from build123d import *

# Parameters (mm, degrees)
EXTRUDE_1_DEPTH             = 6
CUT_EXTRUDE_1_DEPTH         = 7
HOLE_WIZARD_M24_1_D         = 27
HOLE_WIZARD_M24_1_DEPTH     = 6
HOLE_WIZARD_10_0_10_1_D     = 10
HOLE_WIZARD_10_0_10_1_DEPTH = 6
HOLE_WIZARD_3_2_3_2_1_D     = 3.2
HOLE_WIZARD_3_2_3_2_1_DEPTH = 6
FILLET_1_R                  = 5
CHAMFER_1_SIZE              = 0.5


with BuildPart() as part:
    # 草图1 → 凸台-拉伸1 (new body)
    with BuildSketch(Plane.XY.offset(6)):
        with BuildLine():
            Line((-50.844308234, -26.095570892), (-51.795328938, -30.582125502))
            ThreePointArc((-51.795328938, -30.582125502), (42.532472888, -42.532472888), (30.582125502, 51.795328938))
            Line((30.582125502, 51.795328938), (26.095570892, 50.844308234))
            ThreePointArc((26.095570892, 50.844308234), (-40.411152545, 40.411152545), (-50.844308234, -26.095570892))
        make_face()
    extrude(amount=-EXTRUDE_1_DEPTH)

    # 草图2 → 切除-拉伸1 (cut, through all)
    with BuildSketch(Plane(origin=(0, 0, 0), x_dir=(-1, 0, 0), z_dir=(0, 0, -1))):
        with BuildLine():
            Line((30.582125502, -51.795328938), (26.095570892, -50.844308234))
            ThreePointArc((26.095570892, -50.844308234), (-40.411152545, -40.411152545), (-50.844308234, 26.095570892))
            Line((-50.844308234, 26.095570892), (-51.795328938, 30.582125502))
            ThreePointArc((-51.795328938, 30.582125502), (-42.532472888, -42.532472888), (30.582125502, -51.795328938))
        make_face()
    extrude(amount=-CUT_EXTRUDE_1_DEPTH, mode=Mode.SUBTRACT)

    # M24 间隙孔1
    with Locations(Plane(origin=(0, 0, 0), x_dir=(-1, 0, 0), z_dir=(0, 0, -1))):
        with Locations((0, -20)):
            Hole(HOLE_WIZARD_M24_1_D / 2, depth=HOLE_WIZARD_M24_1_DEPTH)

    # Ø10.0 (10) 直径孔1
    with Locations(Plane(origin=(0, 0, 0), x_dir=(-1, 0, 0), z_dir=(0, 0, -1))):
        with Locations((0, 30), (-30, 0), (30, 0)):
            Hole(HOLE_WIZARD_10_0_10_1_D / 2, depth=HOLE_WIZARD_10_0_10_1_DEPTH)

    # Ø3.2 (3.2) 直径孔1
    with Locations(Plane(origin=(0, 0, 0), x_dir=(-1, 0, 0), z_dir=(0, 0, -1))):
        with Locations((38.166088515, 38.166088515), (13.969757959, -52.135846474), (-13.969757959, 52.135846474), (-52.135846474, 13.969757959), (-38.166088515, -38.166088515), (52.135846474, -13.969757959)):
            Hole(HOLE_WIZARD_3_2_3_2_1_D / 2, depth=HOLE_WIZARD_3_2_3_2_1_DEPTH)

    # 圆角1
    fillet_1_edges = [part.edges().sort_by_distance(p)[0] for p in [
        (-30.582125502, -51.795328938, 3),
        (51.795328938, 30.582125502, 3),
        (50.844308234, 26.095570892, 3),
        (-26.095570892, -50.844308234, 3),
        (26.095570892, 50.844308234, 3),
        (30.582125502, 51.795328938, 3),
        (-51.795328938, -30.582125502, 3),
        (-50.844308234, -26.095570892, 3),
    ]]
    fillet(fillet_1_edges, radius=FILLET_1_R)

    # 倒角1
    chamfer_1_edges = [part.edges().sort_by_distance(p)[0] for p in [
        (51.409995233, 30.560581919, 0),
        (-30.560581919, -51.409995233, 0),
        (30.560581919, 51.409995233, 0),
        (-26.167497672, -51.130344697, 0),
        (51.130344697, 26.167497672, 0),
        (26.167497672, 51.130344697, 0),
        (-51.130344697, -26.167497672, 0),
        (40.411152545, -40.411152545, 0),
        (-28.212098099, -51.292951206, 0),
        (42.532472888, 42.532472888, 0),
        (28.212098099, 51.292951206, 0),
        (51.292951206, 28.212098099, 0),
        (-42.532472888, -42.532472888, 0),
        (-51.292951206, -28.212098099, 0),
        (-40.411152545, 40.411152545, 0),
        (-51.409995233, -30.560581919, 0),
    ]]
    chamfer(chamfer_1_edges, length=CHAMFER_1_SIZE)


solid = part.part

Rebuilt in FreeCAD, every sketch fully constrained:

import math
import FreeCAD as App
import Part
import Sketcher

V = App.Vector
Q = App.Units.Quantity


def edges_at(feature, points):
    """Names of the edges that pass closest to the given points."""
    edges = feature.Shape.Edges
    near = lambda p: min(range(len(edges)), key=lambda i: edges[i].distToShape(Part.Vertex(*p))[0])
    return sorted({f"Edge{near(p) + 1}" for p in points})

doc = App.newDocument("Part")
params = doc.addObject("Spreadsheet::Sheet", "Params")
for row, (alias, value) in enumerate([
    ("sketch1_radius", "60.15 mm"),
    ("sketch1_radius2", "57.15 mm"),
    ("pad1_length", "6 mm"),
    ("sketch2_radius", "57.15 mm"),
    ("sketch2_radius2", "60.15 mm"),
    ("sketch3_diameter", "27 mm"),
    ("hole_diameter", "27 mm"),
    ("hole_depth", "6 mm"),
    ("sketch4_diameter", "10 mm"),
    ("hole2_diameter", "10 mm"),
    ("hole2_depth", "6 mm"),
    ("sketch5_diameter", "3.2 mm"),
    ("hole3_diameter", "3.2 mm"),
    ("hole3_depth", "6 mm"),
    ("fillet_radius", "5 mm"),
    ("chamfer_size", "0.5 mm"),
], start=1):
    params.set(f"A{row}", alias)
    params.set(f"B{row}", "=" + value)
    params.setAlias(f"B{row}", alias)

body = doc.addObject("PartDesign::Body", "Body")

# Sketch on XY plane
sketch1 = body.newObject("Sketcher::SketchObject", "Sketch")
sketch1.AttachmentSupport = (doc.getObject("XY_Plane"), [""])
sketch1.MapMode = "FlatFace"
sketch1.AttachmentOffset = App.Placement(V(0, 0, 6), App.Rotation())
sketch1.addGeometry(Part.LineSegment(V(-50.8, -26.1, 0), V(-51.8, -30.6, 0)), False)
sketch1.addGeometry(Part.ArcOfCircle(Part.Circle(V(0, 0, 0), V(0, 0, 1), 60.1), math.radians(-149), math.radians(59)), False)
sketch1.addGeometry(Part.LineSegment(V(30.6, 51.8, 0), V(26.1, 50.8, 0)), False)
sketch1.addGeometry(Part.ArcOfCircle(Part.Circle(V(0, 0, 0), V(0, 0, 1), 57.1), math.radians(63), math.radians(207)), False)
sketch1.addConstraint(Sketcher.Constraint("Coincident", 0, 2, 1, 1))
sketch1.addConstraint(Sketcher.Constraint("Coincident", 1, 2, 2, 1))
sketch1.addConstraint(Sketcher.Constraint("Coincident", 2, 2, 3, 1))
sketch1.addConstraint(Sketcher.Constraint("Coincident", 3, 2, 0, 1))
sketch1.addConstraint(Sketcher.Constraint("Coincident", 1, 3, -1, 1))
sketch1.addConstraint(Sketcher.Constraint("Coincident", 3, 3, -1, 1))
sketch1.addConstraint(Sketcher.Constraint("Equal", 0, 2))
sketch1.addConstraint(Sketcher.Constraint("Radius", 1, Q("60.15 mm")))
sketch1.addConstraint(Sketcher.Constraint("Radius", 3, Q("57.15 mm")))
sketch1.addConstraint(Sketcher.Constraint("DistanceX", 0, 2, 2, 2, Q("77.8909 mm")))
sketch1.addConstraint(Sketcher.Constraint("DistanceY", 3, 2, 1, 2, Q("77.8909 mm")))
sketch1.addConstraint(Sketcher.Constraint("Distance", 0, Q("4.586242 mm")))
sketch1.setExpression("Constraints[7]", "Params.sketch1_radius")
sketch1.setExpression("Constraints[8]", "Params.sketch1_radius2")
pad1 = body.newObject("PartDesign::Pad", "Pad")
pad1.Profile = sketch1
pad1.setExpression("Length", "Params.pad1_length")
pad1.Reversed = True

# Sketch on XY plane
sketch2 = body.newObject("Sketcher::SketchObject", "Sketch001")
sketch2.AttachmentSupport = (doc.getObject("XY_Plane"), [""])
sketch2.MapMode = "FlatFace"
sketch2.addGeometry(Part.LineSegment(V(-30.6, -51.8, 0), V(-26.1, -50.8, 0)), False)
sketch2.addGeometry(Part.ArcOfCircle(Part.Circle(V(0, 0, 0), V(0, 0, 1), 57.1), math.radians(-117), math.radians(27)), False)
sketch2.addGeometry(Part.LineSegment(V(50.8, 26.1, 0), V(51.8, 30.6, 0)), False)
sketch2.addGeometry(Part.ArcOfCircle(Part.Circle(V(0, 0, 0), V(0, 0, 1), 60.1), math.radians(-121), math.radians(31)), False)
sketch2.addConstraint(Sketcher.Constraint("Coincident", 0, 2, 1, 1))
sketch2.addConstraint(Sketcher.Constraint("Coincident", 1, 2, 2, 1))
sketch2.addConstraint(Sketcher.Constraint("Coincident", 2, 2, 3, 2))
sketch2.addConstraint(Sketcher.Constraint("Coincident", 3, 1, 0, 1))
sketch2.addConstraint(Sketcher.Constraint("Coincident", 1, 3, -1, 1))
sketch2.addConstraint(Sketcher.Constraint("Coincident", 3, 3, -1, 1))
sketch2.addConstraint(Sketcher.Constraint("Equal", 0, 2))
sketch2.addConstraint(Sketcher.Constraint("Radius", 1, Q("57.15 mm")))
sketch2.addConstraint(Sketcher.Constraint("Radius", 3, Q("60.15 mm")))
sketch2.addConstraint(Sketcher.Constraint("DistanceX", 0, 2, 2, 2, Q("77.8909 mm")))
sketch2.addConstraint(Sketcher.Constraint("DistanceY", 3, 1, 1, 2, Q("77.8909 mm")))
sketch2.addConstraint(Sketcher.Constraint("Distance", 0, Q("4.586242 mm")))
sketch2.setExpression("Constraints[7]", "Params.sketch2_radius")
sketch2.setExpression("Constraints[8]", "Params.sketch2_radius2")
pocket1 = body.newObject("PartDesign::Pocket", "Pocket")
pocket1.Profile = sketch2
pocket1.Type = "ThroughAll"
pocket1.Reversed = True

# Sketch on XY plane
sketch3 = body.newObject("Sketcher::SketchObject", "Sketch002")
sketch3.AttachmentSupport = (doc.getObject("XY_Plane"), [""])
sketch3.MapMode = "FlatFace"
sketch3.addGeometry(Part.Circle(V(0, -20, 0), V(0, 0, 1), 14), False)
sketch3.addConstraint(Sketcher.Constraint("PointOnObject", 0, 3, -2))
sketch3.addConstraint(Sketcher.Constraint("Diameter", 0, Q("27 mm")))
sketch3.addConstraint(Sketcher.Constraint("DistanceY", 0, 3, -1, 1, Q("20 mm")))
sketch3.setExpression("Constraints[1]", "Params.sketch3_diameter")
doc.recompute()
hole = body.newObject("PartDesign::Hole", "Hole")
hole.Profile = sketch3
hole.ThreadType = "None"
hole.setExpression("Diameter", "Params.hole_diameter")
hole.DepthType = "Dimension"
hole.setExpression("Depth", "Params.hole_depth")
hole.DrillPoint = "Flat"
hole.Reversed = True

# Sketch on XY plane
sketch4 = body.newObject("Sketcher::SketchObject", "Sketch003")
sketch4.AttachmentSupport = (doc.getObject("XY_Plane"), [""])
sketch4.MapMode = "FlatFace"
sketch4.addGeometry(Part.Circle(V(0, 30, 0), V(0, 0, 1), 5), False)
sketch4.addGeometry(Part.Circle(V(30, 0, 0), V(0, 0, 1), 5), False)
sketch4.addGeometry(Part.Circle(V(-30, 0, 0), V(0, 0, 1), 5), False)
sketch4.addConstraint(Sketcher.Constraint("Equal", 0, 1))
sketch4.addConstraint(Sketcher.Constraint("Equal", 1, 2))
sketch4.addConstraint(Sketcher.Constraint("Symmetric", 1, 3, 2, 3, -1, 1))
sketch4.addConstraint(Sketcher.Constraint("PointOnObject", 0, 3, -2))
sketch4.addConstraint(Sketcher.Constraint("PointOnObject", 1, 3, -1))
sketch4.addConstraint(Sketcher.Constraint("Diameter", 0, Q("10 mm")))
sketch4.addConstraint(Sketcher.Constraint("DistanceY", -1, 1, 0, 3, Q("30 mm")))
sketch4.addConstraint(Sketcher.Constraint("DistanceX", -1, 1, 1, 3, Q("30 mm")))
sketch4.setExpression("Constraints[5]", "Params.sketch4_diameter")
doc.recompute()
hole2 = body.newObject("PartDesign::Hole", "Hole001")
hole2.Profile = sketch4
hole2.ThreadType = "None"
hole2.setExpression("Diameter", "Params.hole2_diameter")
hole2.DepthType = "Dimension"
hole2.setExpression("Depth", "Params.hole2_depth")
hole2.DrillPoint = "Flat"
hole2.Reversed = True

# Sketch on XY plane
sketch5 = body.newObject("Sketcher::SketchObject", "Sketch004")
sketch5.AttachmentSupport = (doc.getObject("XY_Plane"), [""])
sketch5.MapMode = "FlatFace"
sketch5.addGeometry(Part.Circle(V(-38.2, 38.2, 0), V(0, 0, 1), 1.6), False)
sketch5.addGeometry(Part.Circle(V(-14, -52.1, 0), V(0, 0, 1), 1.6), False)
sketch5.addGeometry(Part.Circle(V(14, 52.1, 0), V(0, 0, 1), 1.6), False)
sketch5.addGeometry(Part.Circle(V(52.1, 14, 0), V(0, 0, 1), 1.6), False)
sketch5.addGeometry(Part.Circle(V(38.2, -38.2, 0), V(0, 0, 1), 1.6), False)
sketch5.addGeometry(Part.Circle(V(-52.1, -14, 0), V(0, 0, 1), 1.6), False)
sketch5.addConstraint(Sketcher.Constraint("Equal", 0, 1))
sketch5.addConstraint(Sketcher.Constraint("Equal", 1, 2))
sketch5.addConstraint(Sketcher.Constraint("Equal", 2, 3))
sketch5.addConstraint(Sketcher.Constraint("Equal", 3, 4))
sketch5.addConstraint(Sketcher.Constraint("Equal", 4, 5))
sketch5.addConstraint(Sketcher.Constraint("Symmetric", 1, 3, 2, 3, -1, 1))
sketch5.addConstraint(Sketcher.Constraint("Symmetric", 0, 3, 4, 3, -1, 1))
sketch5.addConstraint(Sketcher.Constraint("Symmetric", 3, 3, 5, 3, -1, 1))
sketch5.addConstraint(Sketcher.Constraint("Diameter", 0, Q("3.2 mm")))
sketch5.addConstraint(Sketcher.Constraint("DistanceX", 0, 3, -1, 1, Q("38.166089 mm")))
sketch5.addConstraint(Sketcher.Constraint("DistanceY", -1, 1, 0, 3, Q("38.166089 mm")))
sketch5.addConstraint(Sketcher.Constraint("DistanceX", 0, 3, 1, 3, Q("24.196331 mm")))
sketch5.addConstraint(Sketcher.Constraint("DistanceX", 2, 3, 3, 3, Q("38.166089 mm")))
sketch5.addConstraint(Sketcher.Constraint("DistanceY", 3, 3, 2, 3, Q("38.166089 mm")))
sketch5.addConstraint(Sketcher.Constraint("DistanceY", 3, 3, 0, 3, Q("24.196331 mm")))
sketch5.setExpression("Constraints[8]", "Params.sketch5_diameter")
doc.recompute()
hole3 = body.newObject("PartDesign::Hole", "Hole002")
hole3.Profile = sketch5
hole3.ThreadType = "None"
hole3.setExpression("Diameter", "Params.hole3_diameter")
hole3.DepthType = "Dimension"
hole3.setExpression("Depth", "Params.hole3_depth")
hole3.DrillPoint = "Flat"
hole3.Reversed = True
doc.recompute()

fillet = body.newObject("PartDesign::Fillet", "Fillet")
fillet.Base = (hole3, edges_at(hole3, [
    (-30.582, -51.795, 3),
    (51.795, 30.582, 3),
    (50.844, 26.096, 3),
    (-26.096, -50.844, 3),
    (26.096, 50.844, 3),
    (30.582, 51.795, 3),
    (-51.795, -30.582, 3),
    (-50.844, -26.096, 3),
]))
fillet.setExpression("Radius", "Params.fillet_radius")
doc.recompute()

chamfer = body.newObject("PartDesign::Chamfer", "Chamfer")
chamfer.Base = (fillet, edges_at(fillet, [
    (51.41, 30.561, 0),
    (-30.561, -51.41, 0),
    (30.561, 51.41, 0),
    (-26.167, -51.13, 0),
    (51.13, 26.167, 0),
    (26.167, 51.13, 0),
    (-51.13, -26.167, 0),
    (40.411, -40.411, 0),
    (-28.212, -51.293, 0),
    (42.532, 42.532, 0),
    (28.212, 51.293, 0),
    (51.293, 28.212, 0),
    (-42.532, -42.532, 0),
    (-51.293, -28.212, 0),
    (-40.411, 40.411, 0),
    (-51.41, -30.561, 0),
]))
chamfer.setExpression("Size", "Params.chamfer_size")

doc.recompute()
